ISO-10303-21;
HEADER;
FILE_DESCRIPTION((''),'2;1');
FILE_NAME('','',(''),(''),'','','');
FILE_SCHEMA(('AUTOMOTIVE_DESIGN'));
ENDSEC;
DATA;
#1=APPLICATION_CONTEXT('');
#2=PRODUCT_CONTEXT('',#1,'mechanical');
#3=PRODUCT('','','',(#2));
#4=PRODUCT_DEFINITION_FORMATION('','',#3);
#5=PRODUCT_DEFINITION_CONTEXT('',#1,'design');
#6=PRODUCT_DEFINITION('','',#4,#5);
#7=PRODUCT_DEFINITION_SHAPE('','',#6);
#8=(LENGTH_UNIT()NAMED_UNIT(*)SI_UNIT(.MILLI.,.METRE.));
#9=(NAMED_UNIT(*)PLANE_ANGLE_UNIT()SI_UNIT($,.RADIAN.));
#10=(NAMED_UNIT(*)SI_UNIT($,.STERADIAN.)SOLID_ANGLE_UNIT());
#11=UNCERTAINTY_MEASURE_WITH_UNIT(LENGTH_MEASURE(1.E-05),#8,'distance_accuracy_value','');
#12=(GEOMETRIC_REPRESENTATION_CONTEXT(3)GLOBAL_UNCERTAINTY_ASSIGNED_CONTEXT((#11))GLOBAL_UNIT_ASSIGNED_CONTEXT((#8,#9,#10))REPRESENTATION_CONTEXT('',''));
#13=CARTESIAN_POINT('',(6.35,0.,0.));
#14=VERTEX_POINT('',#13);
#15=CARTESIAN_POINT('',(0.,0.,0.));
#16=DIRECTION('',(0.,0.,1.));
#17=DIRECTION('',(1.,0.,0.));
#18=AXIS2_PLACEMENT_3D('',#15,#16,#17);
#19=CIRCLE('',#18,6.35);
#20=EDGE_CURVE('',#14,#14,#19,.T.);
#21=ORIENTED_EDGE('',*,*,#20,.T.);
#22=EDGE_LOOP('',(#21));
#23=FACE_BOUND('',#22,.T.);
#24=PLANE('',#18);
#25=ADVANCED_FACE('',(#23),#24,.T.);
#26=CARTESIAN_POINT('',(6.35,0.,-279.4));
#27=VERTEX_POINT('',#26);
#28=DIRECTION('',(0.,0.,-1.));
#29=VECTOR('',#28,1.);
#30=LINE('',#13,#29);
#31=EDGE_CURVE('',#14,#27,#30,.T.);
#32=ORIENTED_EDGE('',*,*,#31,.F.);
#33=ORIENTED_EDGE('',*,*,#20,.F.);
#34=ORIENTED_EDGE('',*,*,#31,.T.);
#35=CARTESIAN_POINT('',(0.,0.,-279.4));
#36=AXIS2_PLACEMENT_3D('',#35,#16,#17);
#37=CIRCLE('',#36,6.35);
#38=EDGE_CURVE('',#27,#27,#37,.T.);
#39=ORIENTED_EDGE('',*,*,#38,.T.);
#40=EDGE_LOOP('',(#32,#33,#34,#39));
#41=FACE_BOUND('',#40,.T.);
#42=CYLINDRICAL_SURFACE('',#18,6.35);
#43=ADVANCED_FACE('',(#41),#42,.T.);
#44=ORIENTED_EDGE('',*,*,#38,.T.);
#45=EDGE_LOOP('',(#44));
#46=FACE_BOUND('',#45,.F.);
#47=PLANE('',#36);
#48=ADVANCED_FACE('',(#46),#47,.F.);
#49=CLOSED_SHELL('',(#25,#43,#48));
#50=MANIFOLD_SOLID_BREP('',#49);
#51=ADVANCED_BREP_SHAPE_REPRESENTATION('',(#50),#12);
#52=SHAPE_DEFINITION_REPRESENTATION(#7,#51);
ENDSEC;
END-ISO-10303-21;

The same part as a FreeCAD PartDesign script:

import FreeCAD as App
import Part
import Sketcher
from FreeCAD import Vector
Q = App.Units.Quantity

doc = App.newDocument("Part")
params = doc.addObject("Spreadsheet::Sheet", "Params")
for row, (alias, value) in enumerate([
    ("sketch1_diameter", "0.5 in"),
    ("pad1_length", "11 in"),
], start=1):
    params.set(f"A{row}", alias)
    params.set(f"B{row}", "=" + value)
    params.setAlias(f"B{row}", alias)

body = doc.addObject("PartDesign::Body", "Body")

# Sketch on XY plane
sketch1 = body.newObject("Sketcher::SketchObject", "Sketch")
sketch1.AttachmentSupport = (doc.getObject("XY_Plane"), [""])
sketch1.MapMode = "FlatFace"
sketch1.addGeometry(Part.Circle(Vector(0, 0, 0), Vector(0, 0, 1), 6), False)
sketch1.addConstraint(Sketcher.Constraint("Coincident", 0, 3, -1, 1))
sketch1.addConstraint(Sketcher.Constraint("Diameter", 0, Q("0.5 in")))
sketch1.setExpression("Constraints[1]", "Params.sketch1_diameter")
pad1 = body.newObject("PartDesign::Pad", "Pad")
pad1.Profile = sketch1
pad1.setExpression("Length", "Params.pad1_length")
pad1.Reversed = True

doc.recompute()
